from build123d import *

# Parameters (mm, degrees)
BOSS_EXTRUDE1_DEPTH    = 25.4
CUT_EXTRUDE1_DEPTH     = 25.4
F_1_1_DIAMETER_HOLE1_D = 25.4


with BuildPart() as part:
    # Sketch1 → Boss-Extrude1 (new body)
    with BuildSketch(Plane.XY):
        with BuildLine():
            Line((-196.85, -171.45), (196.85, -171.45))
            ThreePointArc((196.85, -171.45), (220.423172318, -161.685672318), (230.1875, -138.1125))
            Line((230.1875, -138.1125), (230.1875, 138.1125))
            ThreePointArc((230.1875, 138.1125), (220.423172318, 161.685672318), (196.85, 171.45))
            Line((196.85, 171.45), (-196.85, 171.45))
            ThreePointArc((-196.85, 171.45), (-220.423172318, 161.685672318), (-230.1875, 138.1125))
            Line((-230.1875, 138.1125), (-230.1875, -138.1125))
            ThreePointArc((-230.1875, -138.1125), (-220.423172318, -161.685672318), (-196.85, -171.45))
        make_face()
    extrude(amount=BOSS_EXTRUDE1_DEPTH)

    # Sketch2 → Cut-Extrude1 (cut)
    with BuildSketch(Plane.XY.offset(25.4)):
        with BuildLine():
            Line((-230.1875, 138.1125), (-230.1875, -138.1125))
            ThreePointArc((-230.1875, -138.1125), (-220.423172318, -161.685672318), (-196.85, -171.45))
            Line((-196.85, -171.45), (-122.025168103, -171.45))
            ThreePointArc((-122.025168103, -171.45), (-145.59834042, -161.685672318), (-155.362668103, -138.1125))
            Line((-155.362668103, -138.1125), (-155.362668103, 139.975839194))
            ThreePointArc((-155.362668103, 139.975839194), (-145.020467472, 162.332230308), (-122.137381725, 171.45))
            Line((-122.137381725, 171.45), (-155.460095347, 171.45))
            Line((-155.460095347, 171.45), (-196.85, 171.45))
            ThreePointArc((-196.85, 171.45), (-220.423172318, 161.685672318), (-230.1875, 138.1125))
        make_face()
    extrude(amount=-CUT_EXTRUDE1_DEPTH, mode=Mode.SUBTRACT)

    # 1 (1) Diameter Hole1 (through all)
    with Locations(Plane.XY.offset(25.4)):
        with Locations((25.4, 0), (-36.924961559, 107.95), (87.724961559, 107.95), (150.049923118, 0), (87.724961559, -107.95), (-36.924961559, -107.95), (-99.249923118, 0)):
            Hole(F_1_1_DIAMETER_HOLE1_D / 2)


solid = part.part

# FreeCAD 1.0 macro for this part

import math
import FreeCAD as App
import Part
import Sketcher

V = App.Vector
Q = App.Units.Quantity

doc = App.newDocument("Part")
body = doc.addObject("PartDesign::Body", "Body")

# Sketch on XY plane
sketch1 = doc.addObject("Sketcher::SketchObject", "Sketch")
body.addObject(sketch1)
sketch1.AttachmentSupport = (doc.XY_Plane, [""])
sketch1.MapMode = "FlatFace"
sketch1.addGeometry(Part.LineSegment(V(-196.85, -171.45, 0), V(196.85, -171.45, 0)), False)
sketch1.addGeometry(Part.ArcOfCircle(Part.Circle(V(196.85, -138.1125, 0), V(0, 0, 1), 33.3375), math.radians(-90), math.radians(0)), False)
sketch1.addGeometry(Part.LineSegment(V(230.1875, -138.1125, 0), V(230.1875, 138.1125, 0)), False)
sketch1.addGeometry(Part.ArcOfCircle(Part.Circle(V(196.85, 138.1125, 0), V(0, 0, 1), 33.3375), math.radians(0), math.radians(90)), False)
sketch1.addGeometry(Part.LineSegment(V(196.85, 171.45, 0), V(-196.85, 171.45, 0)), False)
sketch1.addGeometry(Part.ArcOfCircle(Part.Circle(V(-196.85, 138.1125, 0), V(0, 0, 1), 33.3375), math.radians(90), math.radians(180)), False)
sketch1.addGeometry(Part.LineSegment(V(-230.1875, 138.1125, 0), V(-230.1875, -138.1125, 0)), False)
sketch1.addGeometry(Part.ArcOfCircle(Part.Circle(V(-196.85, -138.1125, 0), V(0, 0, 1), 33.3375), math.radians(180), math.radians(270)), False)
sketch1.addConstraint(Sketcher.Constraint("Tangent", 0, 2, 1, 1))
sketch1.addConstraint(Sketcher.Constraint("Tangent", 1, 2, 2, 1))
sketch1.addConstraint(Sketcher.Constraint("Tangent", 2, 2, 3, 1))
sketch1.addConstraint(Sketcher.Constraint("Tangent", 3, 2, 4, 1))
sketch1.addConstraint(Sketcher.Constraint("Tangent", 4, 2, 5, 1))
sketch1.addConstraint(Sketcher.Constraint("Tangent", 5, 2, 6, 1))
sketch1.addConstraint(Sketcher.Constraint("Tangent", 6, 2, 7, 1))
sketch1.addConstraint(Sketcher.Constraint("Tangent", 7, 2, 0, 1))
sketch1.addConstraint(Sketcher.Constraint("Horizontal", 0))
sketch1.addConstraint(Sketcher.Constraint("Vertical", 2))
sketch1.addConstraint(Sketcher.Constraint("Horizontal", 4))
sketch1.addConstraint(Sketcher.Constraint("Vertical", 6))
sketch1.addConstraint(Sketcher.Constraint("Equal", 1, 3))
sketch1.addConstraint(Sketcher.Constraint("Equal", 3, 5))
sketch1.addConstraint(Sketcher.Constraint("Equal", 5, 7))
sketch1.addConstraint(Sketcher.Constraint("Symmetric", 1, 3, 5, 3, -1, 1))
sketch1.addConstraint(Sketcher.Constraint("DistanceX", 0, 1, 0, 2, Q("15.5 in")))
sketch1.addConstraint(Sketcher.Constraint("Radius", 1, Q("1.3125 in")))
sketch1.addConstraint(Sketcher.Constraint("DistanceY", 0, 2, 3, 2, Q("13.5 in")))
pad1 = doc.addObject("PartDesign::Pad", "Pad")
body.addObject(pad1)
pad1.Profile = sketch1
pad1.Length = Q("1 in")

# Sketch on XY plane
sketch2 = doc.addObject("Sketcher::SketchObject", "Sketch001")
body.addObject(sketch2)
sketch2.AttachmentSupport = (doc.XY_Plane, [""])
sketch2.MapMode = "FlatFace"
sketch2.AttachmentOffset = App.Placement(V(0, 0, 1 * 25.4), App.Rotation())
sketch2.addGeometry(Part.LineSegment(V(-230.1875, 138.1125, 0), V(-230.1875, -138.1125, 0)), False)
sketch2.addGeometry(Part.ArcOfCircle(Part.Circle(V(-196.85, -138.1125, 0), V(0, 0, 1), 33.3375), math.radians(180), math.radians(270)), False)
sketch2.addGeometry(Part.LineSegment(V(-196.85, -171.45, 0), V(-122.025168, -171.45, 0)), False)
sketch2.addGeometry(Part.ArcOfCircle(Part.Circle(V(-122.025168, -138.1125, 0), V(0, 0, 1), 33.3375), math.radians(-180), math.radians(-90)), False)
sketch2.addGeometry(Part.LineSegment(V(-155.362668, -138.1125, 0), V(-155.362668, 139.975839, 0)), False)
sketch2.addGeometry(Part.ArcOfCircle(Part.Circle(V(-122.137382, 138.176, 0), V(0, 0, 1), 33.274), math.radians(90), math.radians(176.899274)), False)
sketch2.addGeometry(Part.LineSegment(V(-122.137382, 171.45, 0), V(-196.85, 171.45, 0)), False)
sketch2.addGeometry(Part.ArcOfCircle(Part.Circle(V(-196.85, 138.1125, 0), V(0, 0, 1), 33.3375), math.radians(90), math.radians(180)), False)
sketch2.addConstraint(Sketcher.Constraint("Tangent", 0, 2, 1, 1))
sketch2.addConstraint(Sketcher.Constraint("Tangent", 1, 2, 2, 1))
sketch2.addConstraint(Sketcher.Constraint("Tangent", 2, 2, 3, 2))
sketch2.addConstraint(Sketcher.Constraint("Tangent", 3, 1, 4, 1))
sketch2.addConstraint(Sketcher.Constraint("Coincident", 4, 2, 5, 2))
sketch2.addConstraint(Sketcher.Constraint("Tangent", 5, 1, 6, 1))
sketch2.addConstraint(Sketcher.Constraint("Tangent", 6, 2, 7, 1))
sketch2.addConstraint(Sketcher.Constraint("Tangent", 7, 2, 0, 1))
sketch2.addConstraint(Sketcher.Constraint("Vertical", 0))
sketch2.addConstraint(Sketcher.Constraint("Horizontal", 2))
sketch2.addConstraint(Sketcher.Constraint("Vertical", 4))
sketch2.addConstraint(Sketcher.Constraint("Horizontal", 6))
sketch2.addConstraint(Sketcher.Constraint("Equal", 1, 3))
sketch2.addConstraint(Sketcher.Constraint("Equal", 3, 7))
sketch2.addConstraint(Sketcher.Constraint("Radius", 5, Q("1.31 in")))
sketch2.addConstraint(Sketcher.Constraint("Radius", 1, Q("1.3125 in")))
sketch2.addConstraint(Sketcher.Constraint("DistanceY", 0, 2, 0, 1, Q("10.875 in")))
sketch2.addConstraint(Sketcher.Constraint("DistanceX", 1, 3, -1, 1, Q("7.75 in")))
sketch2.addConstraint(Sketcher.Constraint("DistanceY", -1, 1, 5, 3, Q("5.44 in")))
sketch2.addConstraint(Sketcher.Constraint("DistanceX", 2, 1, 2, 2, 74.824832))
sketch2.addConstraint(Sketcher.Constraint("DistanceX", 6, 2, 6, 1, 74.712618))
pocket1 = doc.addObject("PartDesign::Pocket", "Pocket")
body.addObject(pocket1)
pocket1.Profile = sketch2
pocket1.Length = Q("1 in")

# Sketch on XY plane
sketch3 = doc.addObject("Sketcher::SketchObject", "Sketch002")
body.addObject(sketch3)
sketch3.AttachmentSupport = (doc.XY_Plane, [""])
sketch3.MapMode = "FlatFace"
sketch3.AttachmentOffset = App.Placement(V(0, 0, 1 * 25.4), App.Rotation())
sketch3.addGeometry(Part.Circle(V(25.4, 0, 0), V(0, 0, 1), 12.7), False)
sketch3.addGeometry(Part.Circle(V(-36.924962, 107.95, 0), V(0, 0, 1), 12.7), False)
sketch3.addGeometry(Part.Circle(V(87.724962, 107.95, 0), V(0, 0, 1), 12.7), False)
sketch3.addGeometry(Part.Circle(V(150.049923, 0, 0), V(0, 0, 1), 12.7), False)
sketch3.addGeometry(Part.Circle(V(87.724962, -107.95, 0), V(0, 0, 1), 12.7), False)
sketch3.addGeometry(Part.Circle(V(-36.924962, -107.95, 0), V(0, 0, 1), 12.7), False)
sketch3.addGeometry(Part.Circle(V(-99.249923, 0, 0), V(0, 0, 1), 12.7), False)
sketch3.addConstraint(Sketcher.Constraint("Equal", 0, 1))
sketch3.addConstraint(Sketcher.Constraint("Equal", 1, 2))
sketch3.addConstraint(Sketcher.Constraint("Equal", 2, 3))
sketch3.addConstraint(Sketcher.Constraint("Equal", 3, 4))
sketch3.addConstraint(Sketcher.Constraint("Equal", 4, 5))
sketch3.addConstraint(Sketcher.Constraint("Equal", 5, 6))
sketch3.addConstraint(Sketcher.Constraint("Symmetric", 2, 3, 4, 3, -1))
sketch3.addConstraint(Sketcher.Constraint("Symmetric", 1, 3, 5, 3, -1))
sketch3.addConstraint(Sketcher.Constraint("PointOnObject", 0, 3, -1))
sketch3.addConstraint(Sketcher.Constraint("PointOnObject", 3, 3, -1))
sketch3.addConstraint(Sketcher.Constraint("PointOnObject", 6, 3, -1))
sketch3.addConstraint(Sketcher.Constraint("Horizontal", 1, 3, 2, 3))
sketch3.addConstraint(Sketcher.Constraint("Diameter", 0, Q("1 in")))
sketch3.addConstraint(Sketcher.Constraint("DistanceX", -1, 1, 0, 3, Q("1 in")))
sketch3.addConstraint(Sketcher.Constraint("DistanceY", 4, 3, 2, 3, Q("8.5 in")))
sketch3.addConstraint(Sketcher.Constraint("DistanceX", 1, 3, -1, 1, 36.924962))
sketch3.addConstraint(Sketcher.Constraint("DistanceX", -1, 1, 2, 3, 87.724962))
sketch3.addConstraint(Sketcher.Constraint("DistanceX", 2, 3, 3, 3, 62.324962))
sketch3.addConstraint(Sketcher.Constraint("DistanceX", 6, 3, 1, 3, 62.324962))
doc.recompute()
hole = doc.addObject("PartDesign::Hole", "Hole")
body.addObject(hole)
hole.Profile = sketch3
hole.ThreadType = "None"
hole.Diameter = Q("1 in")
hole.DepthType = "ThroughAll"

doc.recompute()
